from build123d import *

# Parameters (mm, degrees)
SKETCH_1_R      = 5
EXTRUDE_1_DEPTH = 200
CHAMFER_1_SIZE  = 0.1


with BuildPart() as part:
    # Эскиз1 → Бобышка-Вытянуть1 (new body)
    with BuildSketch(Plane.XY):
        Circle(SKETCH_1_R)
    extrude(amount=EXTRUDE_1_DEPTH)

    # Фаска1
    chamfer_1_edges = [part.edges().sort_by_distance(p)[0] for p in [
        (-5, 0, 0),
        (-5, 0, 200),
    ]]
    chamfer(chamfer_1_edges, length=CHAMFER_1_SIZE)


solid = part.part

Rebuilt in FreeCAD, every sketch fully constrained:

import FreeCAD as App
import Part
import Sketcher

V = App.Vector
Q = App.Units.Quantity


def edges_at(feature, points):
    """Names of the edges that pass closest to the given points."""
    edges = feature.Shape.Edges
    near = lambda p: min(range(len(edges)), key=lambda i: edges[i].distToShape(Part.Vertex(*p))[0])
    return sorted({f"Edge{near(p) + 1}" for p in points})

doc = App.newDocument("Part")
params = doc.addObject("Spreadsheet::Sheet", "Params")
for row, (alias, value) in enumerate([
    ("sketch1_diameter", "10 mm"),
    ("pad1_length", "200 mm"),
    ("chamfer_size", "0.1 mm"),
], start=1):
    params.set(f"A{row}", alias)
    params.set(f"B{row}", "=" + value)
    params.setAlias(f"B{row}", alias)

body = doc.addObject("PartDesign::Body", "Body")

# Sketch on XY plane
sketch1 = body.newObject("Sketcher::SketchObject", "Sketch")
sketch1.AttachmentSupport = (doc.getObject("XY_Plane"), [""])
sketch1.MapMode = "FlatFace"
sketch1.addGeometry(Part.Circle(V(0, 0, 0), V(0, 0, 1), 5), False)
sketch1.addConstraint([
    Sketcher.Constraint("Coincident", 0, 3, -1, 1),
    Sketcher.Constraint("Diameter", 0, Q("10 mm")),
])
sketch1.setExpression("Constraints[1]", "Params.sketch1_diameter")
pad1 = body.newObject("PartDesign::Pad", "Pad")
pad1.Profile = sketch1
pad1.setExpression("Length", "Params.pad1_length")
doc.recompute()

chamfer = body.newObject("PartDesign::Chamfer", "Chamfer")
chamfer.Base = (pad1, edges_at(pad1, [(-5, 0, 0), (-5, 0, 200)]))
chamfer.setExpression("Size", "Params.chamfer_size")

doc.recompute()
